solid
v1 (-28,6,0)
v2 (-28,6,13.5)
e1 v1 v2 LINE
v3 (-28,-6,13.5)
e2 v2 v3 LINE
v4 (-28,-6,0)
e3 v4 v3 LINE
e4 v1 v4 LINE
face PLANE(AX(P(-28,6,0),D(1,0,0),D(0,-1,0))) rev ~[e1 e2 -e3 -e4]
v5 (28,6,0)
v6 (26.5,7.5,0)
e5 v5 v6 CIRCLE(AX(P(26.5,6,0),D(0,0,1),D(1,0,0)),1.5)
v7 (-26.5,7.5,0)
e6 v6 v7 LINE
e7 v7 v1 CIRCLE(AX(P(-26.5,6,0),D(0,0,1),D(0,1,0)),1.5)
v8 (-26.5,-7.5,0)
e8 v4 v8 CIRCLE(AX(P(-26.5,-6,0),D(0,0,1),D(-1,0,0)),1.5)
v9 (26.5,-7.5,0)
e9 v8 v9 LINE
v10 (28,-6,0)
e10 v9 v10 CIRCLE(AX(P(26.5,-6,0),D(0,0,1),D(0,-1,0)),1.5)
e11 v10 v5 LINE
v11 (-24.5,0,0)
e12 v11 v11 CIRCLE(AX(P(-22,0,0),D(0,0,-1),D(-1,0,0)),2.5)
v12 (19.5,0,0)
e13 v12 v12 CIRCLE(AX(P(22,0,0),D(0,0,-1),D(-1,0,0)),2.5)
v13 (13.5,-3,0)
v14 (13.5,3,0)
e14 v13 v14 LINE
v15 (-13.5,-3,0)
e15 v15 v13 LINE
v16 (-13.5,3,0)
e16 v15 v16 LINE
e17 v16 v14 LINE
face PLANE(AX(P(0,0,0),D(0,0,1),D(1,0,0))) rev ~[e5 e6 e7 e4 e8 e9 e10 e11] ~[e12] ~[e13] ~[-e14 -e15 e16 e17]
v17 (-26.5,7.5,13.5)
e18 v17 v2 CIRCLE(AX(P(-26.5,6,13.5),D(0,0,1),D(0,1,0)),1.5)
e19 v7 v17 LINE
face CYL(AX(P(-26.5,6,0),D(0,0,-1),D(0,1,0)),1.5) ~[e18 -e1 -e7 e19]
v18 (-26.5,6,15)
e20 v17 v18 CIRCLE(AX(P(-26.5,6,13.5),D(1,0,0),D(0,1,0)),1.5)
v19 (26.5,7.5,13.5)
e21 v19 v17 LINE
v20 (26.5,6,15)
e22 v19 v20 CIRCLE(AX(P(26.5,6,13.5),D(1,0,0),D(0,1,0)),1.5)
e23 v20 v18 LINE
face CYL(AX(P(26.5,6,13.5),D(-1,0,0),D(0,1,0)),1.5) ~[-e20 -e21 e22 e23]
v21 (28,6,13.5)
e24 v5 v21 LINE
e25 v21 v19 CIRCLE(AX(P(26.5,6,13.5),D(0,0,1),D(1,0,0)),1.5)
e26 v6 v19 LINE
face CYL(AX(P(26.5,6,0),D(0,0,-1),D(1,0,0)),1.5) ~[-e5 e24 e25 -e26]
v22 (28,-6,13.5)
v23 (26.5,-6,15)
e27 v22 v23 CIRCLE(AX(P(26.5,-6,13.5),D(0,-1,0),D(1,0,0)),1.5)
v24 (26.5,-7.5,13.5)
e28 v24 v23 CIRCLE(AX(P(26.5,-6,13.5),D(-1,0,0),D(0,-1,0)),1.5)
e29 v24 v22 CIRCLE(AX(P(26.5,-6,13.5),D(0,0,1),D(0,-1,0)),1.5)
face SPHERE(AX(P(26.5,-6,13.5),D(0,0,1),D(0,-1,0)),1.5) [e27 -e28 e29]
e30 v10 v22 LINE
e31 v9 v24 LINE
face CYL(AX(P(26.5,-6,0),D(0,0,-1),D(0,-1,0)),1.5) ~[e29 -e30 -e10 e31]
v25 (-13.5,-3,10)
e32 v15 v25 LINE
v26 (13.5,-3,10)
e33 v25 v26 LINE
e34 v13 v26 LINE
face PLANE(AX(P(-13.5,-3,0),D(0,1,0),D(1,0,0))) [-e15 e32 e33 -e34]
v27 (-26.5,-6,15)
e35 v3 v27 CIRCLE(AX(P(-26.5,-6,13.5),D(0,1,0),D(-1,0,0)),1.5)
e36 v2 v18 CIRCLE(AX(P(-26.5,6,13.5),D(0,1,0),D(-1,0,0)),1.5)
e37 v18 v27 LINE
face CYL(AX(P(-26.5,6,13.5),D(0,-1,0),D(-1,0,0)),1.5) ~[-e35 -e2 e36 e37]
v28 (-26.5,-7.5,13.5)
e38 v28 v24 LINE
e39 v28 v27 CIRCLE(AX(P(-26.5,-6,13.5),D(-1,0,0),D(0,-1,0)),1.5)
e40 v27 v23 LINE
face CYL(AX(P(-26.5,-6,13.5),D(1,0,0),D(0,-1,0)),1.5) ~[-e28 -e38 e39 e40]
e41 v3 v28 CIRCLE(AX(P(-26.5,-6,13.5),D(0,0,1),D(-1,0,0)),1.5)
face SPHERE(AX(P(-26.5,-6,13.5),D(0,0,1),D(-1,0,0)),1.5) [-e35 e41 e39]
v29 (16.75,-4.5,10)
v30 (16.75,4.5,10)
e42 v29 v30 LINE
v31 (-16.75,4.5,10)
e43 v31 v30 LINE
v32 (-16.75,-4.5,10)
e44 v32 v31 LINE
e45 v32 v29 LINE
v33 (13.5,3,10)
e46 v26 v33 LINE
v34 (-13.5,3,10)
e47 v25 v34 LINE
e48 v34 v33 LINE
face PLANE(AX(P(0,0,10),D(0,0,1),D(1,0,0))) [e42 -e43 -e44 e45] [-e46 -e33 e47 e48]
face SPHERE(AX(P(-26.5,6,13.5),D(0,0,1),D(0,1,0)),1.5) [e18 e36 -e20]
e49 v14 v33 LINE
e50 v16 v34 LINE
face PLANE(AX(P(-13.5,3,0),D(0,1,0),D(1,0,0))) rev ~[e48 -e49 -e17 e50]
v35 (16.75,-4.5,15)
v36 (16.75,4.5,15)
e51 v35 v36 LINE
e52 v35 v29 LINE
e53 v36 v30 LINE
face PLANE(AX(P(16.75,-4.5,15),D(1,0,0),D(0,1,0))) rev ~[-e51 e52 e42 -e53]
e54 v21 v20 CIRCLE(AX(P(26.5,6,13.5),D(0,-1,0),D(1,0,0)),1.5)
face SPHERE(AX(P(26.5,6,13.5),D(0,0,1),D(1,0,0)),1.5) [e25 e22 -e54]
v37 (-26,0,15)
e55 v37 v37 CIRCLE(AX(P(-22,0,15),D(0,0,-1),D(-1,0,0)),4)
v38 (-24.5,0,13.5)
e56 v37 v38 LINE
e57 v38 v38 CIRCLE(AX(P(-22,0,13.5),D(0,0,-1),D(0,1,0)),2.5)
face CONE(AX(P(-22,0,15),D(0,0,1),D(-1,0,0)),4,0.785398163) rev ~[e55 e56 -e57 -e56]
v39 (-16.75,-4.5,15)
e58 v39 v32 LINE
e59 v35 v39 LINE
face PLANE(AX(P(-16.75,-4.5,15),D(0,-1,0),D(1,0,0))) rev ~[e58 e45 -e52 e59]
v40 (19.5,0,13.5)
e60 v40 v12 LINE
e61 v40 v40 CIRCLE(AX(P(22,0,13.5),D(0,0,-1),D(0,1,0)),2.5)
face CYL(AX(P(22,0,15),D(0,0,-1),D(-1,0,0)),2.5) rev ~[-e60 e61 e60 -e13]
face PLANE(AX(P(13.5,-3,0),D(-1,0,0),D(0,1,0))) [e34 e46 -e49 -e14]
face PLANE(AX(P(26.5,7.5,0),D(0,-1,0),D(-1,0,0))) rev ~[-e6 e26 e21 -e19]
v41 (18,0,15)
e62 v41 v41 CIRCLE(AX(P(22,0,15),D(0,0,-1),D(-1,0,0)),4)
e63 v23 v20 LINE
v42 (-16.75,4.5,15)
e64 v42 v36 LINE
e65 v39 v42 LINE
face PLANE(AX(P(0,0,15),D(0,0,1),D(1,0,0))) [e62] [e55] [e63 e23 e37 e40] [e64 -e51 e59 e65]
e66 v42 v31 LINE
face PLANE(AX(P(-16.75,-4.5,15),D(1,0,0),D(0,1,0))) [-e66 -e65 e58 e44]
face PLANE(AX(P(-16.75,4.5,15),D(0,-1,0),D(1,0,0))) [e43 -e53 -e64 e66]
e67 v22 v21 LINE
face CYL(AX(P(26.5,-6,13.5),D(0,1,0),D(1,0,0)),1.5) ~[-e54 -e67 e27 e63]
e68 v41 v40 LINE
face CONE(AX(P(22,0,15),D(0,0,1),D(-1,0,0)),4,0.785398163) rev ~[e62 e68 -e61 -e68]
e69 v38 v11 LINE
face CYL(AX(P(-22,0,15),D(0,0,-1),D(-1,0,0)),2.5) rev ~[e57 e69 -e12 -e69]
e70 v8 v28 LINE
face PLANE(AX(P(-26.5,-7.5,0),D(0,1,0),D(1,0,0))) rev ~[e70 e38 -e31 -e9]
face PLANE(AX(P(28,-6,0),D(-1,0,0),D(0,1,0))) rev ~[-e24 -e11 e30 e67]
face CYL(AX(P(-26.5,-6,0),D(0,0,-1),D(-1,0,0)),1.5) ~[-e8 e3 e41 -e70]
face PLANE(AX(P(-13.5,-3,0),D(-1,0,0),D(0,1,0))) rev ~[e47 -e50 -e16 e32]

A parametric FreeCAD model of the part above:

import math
import FreeCAD as App
import Part
import Sketcher
from FreeCAD import Vector


def edges_at(feature, points):
    """Names of the edges that pass closest to the given points."""
    edges = feature.Shape.Edges
    near = lambda p: min(range(len(edges)), key=lambda i: edges[i].distToShape(Part.Vertex(*p))[0])
    return sorted({f"Edge{near(p) + 1}" for p in points})

doc = App.newDocument("Part")
body = doc.addObject("PartDesign::Body", "Body")

sketch1 = body.newObject("Sketcher::SketchObject", "Sketch")
sketch1.AttachmentSupport = (doc.getObject("XY_Plane"), [""])
sketch1.MapMode = "FlatFace"
sketch1.addGeometry([
    Part.LineSegment(Vector(-26.5, -7.5, 0), Vector(26.5, -7.5, 0)),
    Part.ArcOfCircle(Part.Circle(Vector(26.5, -6, 0), Vector(0, 0, 1), 1.5), math.radians(-90), math.radians(0)),
    Part.LineSegment(Vector(28, -6, 0), Vector(28, 6, 0)),
    Part.ArcOfCircle(Part.Circle(Vector(26.5, 6, 0), Vector(0, 0, 1), 1.5), math.radians(0), math.radians(90)),
    Part.LineSegment(Vector(26.5, 7.5, 0), Vector(-26.5, 7.5, 0)),
    Part.ArcOfCircle(Part.Circle(Vector(-26.5, 6, 0), Vector(0, 0, 1), 1.5), math.radians(90), math.radians(180)),
    Part.LineSegment(Vector(-28, 6, 0), Vector(-28, -6, 0)),
    Part.ArcOfCircle(Part.Circle(Vector(-26.5, -6, 0), Vector(0, 0, 1), 1.5), math.radians(180), math.radians(270)),
    Part.LineSegment(Vector(13.5, -3, 0), Vector(-13.5, -3, 0)),
    Part.LineSegment(Vector(-13.5, -3, 0), Vector(-13.5, 3, 0)),
    Part.LineSegment(Vector(-13.5, 3, 0), Vector(13.5, 3, 0)),
    Part.LineSegment(Vector(13.5, 3, 0), Vector(13.5, -3, 0)),
], False)
sketch1.addConstraint([
    Sketcher.Constraint("Tangent", 0, 2, 1, 1),
    Sketcher.Constraint("Tangent", 1, 2, 2, 1),
    Sketcher.Constraint("Tangent", 2, 2, 3, 1),
    Sketcher.Constraint("Tangent", 3, 2, 4, 1),
    Sketcher.Constraint("Tangent", 4, 2, 5, 1),
    Sketcher.Constraint("Tangent", 5, 2, 6, 1),
    Sketcher.Constraint("Tangent", 6, 2, 7, 1),
    Sketcher.Constraint("Tangent", 7, 2, 0, 1),
    Sketcher.Constraint("Coincident", 8, 2, 9, 1),
    Sketcher.Constraint("Coincident", 9, 2, 10, 1),
    Sketcher.Constraint("Coincident", 10, 2, 11, 1),
    Sketcher.Constraint("Coincident", 11, 2, 8, 1),
    Sketcher.Constraint("Horizontal", 0),
    Sketcher.Constraint("Vertical", 2),
    Sketcher.Constraint("Horizontal", 4),
    Sketcher.Constraint("Vertical", 6),
    Sketcher.Constraint("Horizontal", 8),
    Sketcher.Constraint("Vertical", 9),
    Sketcher.Constraint("Horizontal", 10),
    Sketcher.Constraint("Vertical", 11),
    Sketcher.Constraint("Equal", 1, 3),
    Sketcher.Constraint("Equal", 3, 5),
    Sketcher.Constraint("Equal", 5, 7),
    Sketcher.Constraint("Symmetric", 1, 3, 5, 3, -1, 1),
    Sketcher.Constraint("Symmetric", 8, 2, 10, 2, -1, 1),
    Sketcher.Constraint("Radius", 1, 1.5),
    Sketcher.Constraint("DistanceX", 0, 1, 0, 2, 53.0),
    Sketcher.Constraint("DistanceX", 8, 2, 8, 1, 27.0),
    Sketcher.Constraint("DistanceY", 2, 1, 2, 2, 12.0),
    Sketcher.Constraint("DistanceY", 9, 1, 9, 2, 6.0),
])
pad1 = body.newObject("PartDesign::Pad", "Pad")
pad1.Profile = sketch1
pad1.Length = 15
doc.recompute()

fillet = body.newObject("PartDesign::Fillet", "Fillet")
fillet.Base = (pad1, edges_at(pad1, [
    (0, -7.5, 15),
    (27.561, -7.061, 15),
    (28, 0, 15),
    (27.561, 7.061, 15),
    (0, 7.5, 15),
    (-27.561, 7.061, 15),
    (-28, 0, 15),
    (-27.561, -7.061, 15),
    (13.5, 0, 15),
    (0, -3, 15),
    (-13.5, 0, 15),
    (0, 3, 15),
]))
fillet.Radius = 1.5

sketch2 = body.newObject("Sketcher::SketchObject", "Sketch001")
sketch2.AttachmentSupport = (doc.getObject("XY_Plane"), [""])
sketch2.MapMode = "FlatFace"
sketch2.AttachmentOffset = App.Placement(Vector(0, 0, 15), App.Rotation())
sketch2.addGeometry([
    Part.LineSegment(Vector(-17, 4, 0), Vector(-17, -4, 0)),
    Part.LineSegment(Vector(-17, -4, 0), Vector(17, -4, 0)),
    Part.LineSegment(Vector(17, -4, 0), Vector(17, 4, 0)),
    Part.LineSegment(Vector(17, 4, 0), Vector(-17, 4, 0)),
    Part.LineSegment(Vector(14, -3, 0), Vector(-14, -3, 0)),
    Part.LineSegment(Vector(-14, -3, 0), Vector(-14, 3, 0)),
    Part.LineSegment(Vector(-14, 3, 0), Vector(14, 3, 0)),
    Part.LineSegment(Vector(14, 3, 0), Vector(14, -3, 0)),
], False)
sketch2.addConstraint([
    Sketcher.Constraint("Coincident", 0, 2, 1, 1),
    Sketcher.Constraint("Coincident", 1, 2, 2, 1),
    Sketcher.Constraint("Coincident", 2, 2, 3, 1),
    Sketcher.Constraint("Coincident", 3, 2, 0, 1),
    Sketcher.Constraint("Coincident", 4, 2, 5, 1),
    Sketcher.Constraint("Coincident", 5, 2, 6, 1),
    Sketcher.Constraint("Coincident", 6, 2, 7, 1),
    Sketcher.Constraint("Coincident", 7, 2, 4, 1),
    Sketcher.Constraint("Vertical", 0),
    Sketcher.Constraint("Horizontal", 1),
    Sketcher.Constraint("Vertical", 2),
    Sketcher.Constraint("Horizontal", 3),
    Sketcher.Constraint("Horizontal", 4),
    Sketcher.Constraint("Vertical", 5),
    Sketcher.Constraint("Horizontal", 6),
    Sketcher.Constraint("Vertical", 7),
    Sketcher.Constraint("Symmetric", 0, 2, 2, 2, -1, 1),
    Sketcher.Constraint("Symmetric", 4, 2, 6, 2, -1, 1),
    Sketcher.Constraint("DistanceX", 4, 2, 4, 1, 27.0),
    Sketcher.Constraint("DistanceY", 0, 2, 0, 1, 9.0),
    Sketcher.Constraint("DistanceY", 5, 1, 5, 2, 6.0),
    Sketcher.Constraint("DistanceX", 1, 1, 1, 2, 33.5),
])
pocket1 = body.newObject("PartDesign::Pocket", "Pocket")
pocket1.Profile = sketch2
pocket1.Length = 5

sketch3 = body.newObject("Sketcher::SketchObject", "Sketch002")
sketch3.AttachmentSupport = (doc.getObject("XY_Plane"), [""])
sketch3.MapMode = "FlatFace"
sketch3.AttachmentOffset = App.Placement(Vector(0, 0, 15), App.Rotation())
sketch3.addGeometry([
    Part.Circle(Vector(-22, 0, 0), Vector(0, 0, 1), 2.5),
    Part.Circle(Vector(22, 0, 0), Vector(0, 0, 1), 2.5),
], False)
sketch3.addConstraint([
    Sketcher.Constraint("Equal", 0, 1),
    Sketcher.Constraint("Symmetric", 0, 3, 1, 3, -1, 1),
    Sketcher.Constraint("PointOnObject", 0, 3, -1),
    Sketcher.Constraint("Diameter", 0, 5.0),
    Sketcher.Constraint("DistanceX", 0, 3, -1, 1, 22.0),
])
doc.recompute()
hole = body.newObject("PartDesign::Hole", "Hole")
hole.Profile = sketch3
hole.ThreadType = "None"
hole.Diameter = 5
hole.DepthType = "ThroughAll"
hole.HoleCutType = "Countersink"
hole.HoleCutDiameter = 8
hole.HoleCutCountersinkAngle = 90

doc.recompute()
